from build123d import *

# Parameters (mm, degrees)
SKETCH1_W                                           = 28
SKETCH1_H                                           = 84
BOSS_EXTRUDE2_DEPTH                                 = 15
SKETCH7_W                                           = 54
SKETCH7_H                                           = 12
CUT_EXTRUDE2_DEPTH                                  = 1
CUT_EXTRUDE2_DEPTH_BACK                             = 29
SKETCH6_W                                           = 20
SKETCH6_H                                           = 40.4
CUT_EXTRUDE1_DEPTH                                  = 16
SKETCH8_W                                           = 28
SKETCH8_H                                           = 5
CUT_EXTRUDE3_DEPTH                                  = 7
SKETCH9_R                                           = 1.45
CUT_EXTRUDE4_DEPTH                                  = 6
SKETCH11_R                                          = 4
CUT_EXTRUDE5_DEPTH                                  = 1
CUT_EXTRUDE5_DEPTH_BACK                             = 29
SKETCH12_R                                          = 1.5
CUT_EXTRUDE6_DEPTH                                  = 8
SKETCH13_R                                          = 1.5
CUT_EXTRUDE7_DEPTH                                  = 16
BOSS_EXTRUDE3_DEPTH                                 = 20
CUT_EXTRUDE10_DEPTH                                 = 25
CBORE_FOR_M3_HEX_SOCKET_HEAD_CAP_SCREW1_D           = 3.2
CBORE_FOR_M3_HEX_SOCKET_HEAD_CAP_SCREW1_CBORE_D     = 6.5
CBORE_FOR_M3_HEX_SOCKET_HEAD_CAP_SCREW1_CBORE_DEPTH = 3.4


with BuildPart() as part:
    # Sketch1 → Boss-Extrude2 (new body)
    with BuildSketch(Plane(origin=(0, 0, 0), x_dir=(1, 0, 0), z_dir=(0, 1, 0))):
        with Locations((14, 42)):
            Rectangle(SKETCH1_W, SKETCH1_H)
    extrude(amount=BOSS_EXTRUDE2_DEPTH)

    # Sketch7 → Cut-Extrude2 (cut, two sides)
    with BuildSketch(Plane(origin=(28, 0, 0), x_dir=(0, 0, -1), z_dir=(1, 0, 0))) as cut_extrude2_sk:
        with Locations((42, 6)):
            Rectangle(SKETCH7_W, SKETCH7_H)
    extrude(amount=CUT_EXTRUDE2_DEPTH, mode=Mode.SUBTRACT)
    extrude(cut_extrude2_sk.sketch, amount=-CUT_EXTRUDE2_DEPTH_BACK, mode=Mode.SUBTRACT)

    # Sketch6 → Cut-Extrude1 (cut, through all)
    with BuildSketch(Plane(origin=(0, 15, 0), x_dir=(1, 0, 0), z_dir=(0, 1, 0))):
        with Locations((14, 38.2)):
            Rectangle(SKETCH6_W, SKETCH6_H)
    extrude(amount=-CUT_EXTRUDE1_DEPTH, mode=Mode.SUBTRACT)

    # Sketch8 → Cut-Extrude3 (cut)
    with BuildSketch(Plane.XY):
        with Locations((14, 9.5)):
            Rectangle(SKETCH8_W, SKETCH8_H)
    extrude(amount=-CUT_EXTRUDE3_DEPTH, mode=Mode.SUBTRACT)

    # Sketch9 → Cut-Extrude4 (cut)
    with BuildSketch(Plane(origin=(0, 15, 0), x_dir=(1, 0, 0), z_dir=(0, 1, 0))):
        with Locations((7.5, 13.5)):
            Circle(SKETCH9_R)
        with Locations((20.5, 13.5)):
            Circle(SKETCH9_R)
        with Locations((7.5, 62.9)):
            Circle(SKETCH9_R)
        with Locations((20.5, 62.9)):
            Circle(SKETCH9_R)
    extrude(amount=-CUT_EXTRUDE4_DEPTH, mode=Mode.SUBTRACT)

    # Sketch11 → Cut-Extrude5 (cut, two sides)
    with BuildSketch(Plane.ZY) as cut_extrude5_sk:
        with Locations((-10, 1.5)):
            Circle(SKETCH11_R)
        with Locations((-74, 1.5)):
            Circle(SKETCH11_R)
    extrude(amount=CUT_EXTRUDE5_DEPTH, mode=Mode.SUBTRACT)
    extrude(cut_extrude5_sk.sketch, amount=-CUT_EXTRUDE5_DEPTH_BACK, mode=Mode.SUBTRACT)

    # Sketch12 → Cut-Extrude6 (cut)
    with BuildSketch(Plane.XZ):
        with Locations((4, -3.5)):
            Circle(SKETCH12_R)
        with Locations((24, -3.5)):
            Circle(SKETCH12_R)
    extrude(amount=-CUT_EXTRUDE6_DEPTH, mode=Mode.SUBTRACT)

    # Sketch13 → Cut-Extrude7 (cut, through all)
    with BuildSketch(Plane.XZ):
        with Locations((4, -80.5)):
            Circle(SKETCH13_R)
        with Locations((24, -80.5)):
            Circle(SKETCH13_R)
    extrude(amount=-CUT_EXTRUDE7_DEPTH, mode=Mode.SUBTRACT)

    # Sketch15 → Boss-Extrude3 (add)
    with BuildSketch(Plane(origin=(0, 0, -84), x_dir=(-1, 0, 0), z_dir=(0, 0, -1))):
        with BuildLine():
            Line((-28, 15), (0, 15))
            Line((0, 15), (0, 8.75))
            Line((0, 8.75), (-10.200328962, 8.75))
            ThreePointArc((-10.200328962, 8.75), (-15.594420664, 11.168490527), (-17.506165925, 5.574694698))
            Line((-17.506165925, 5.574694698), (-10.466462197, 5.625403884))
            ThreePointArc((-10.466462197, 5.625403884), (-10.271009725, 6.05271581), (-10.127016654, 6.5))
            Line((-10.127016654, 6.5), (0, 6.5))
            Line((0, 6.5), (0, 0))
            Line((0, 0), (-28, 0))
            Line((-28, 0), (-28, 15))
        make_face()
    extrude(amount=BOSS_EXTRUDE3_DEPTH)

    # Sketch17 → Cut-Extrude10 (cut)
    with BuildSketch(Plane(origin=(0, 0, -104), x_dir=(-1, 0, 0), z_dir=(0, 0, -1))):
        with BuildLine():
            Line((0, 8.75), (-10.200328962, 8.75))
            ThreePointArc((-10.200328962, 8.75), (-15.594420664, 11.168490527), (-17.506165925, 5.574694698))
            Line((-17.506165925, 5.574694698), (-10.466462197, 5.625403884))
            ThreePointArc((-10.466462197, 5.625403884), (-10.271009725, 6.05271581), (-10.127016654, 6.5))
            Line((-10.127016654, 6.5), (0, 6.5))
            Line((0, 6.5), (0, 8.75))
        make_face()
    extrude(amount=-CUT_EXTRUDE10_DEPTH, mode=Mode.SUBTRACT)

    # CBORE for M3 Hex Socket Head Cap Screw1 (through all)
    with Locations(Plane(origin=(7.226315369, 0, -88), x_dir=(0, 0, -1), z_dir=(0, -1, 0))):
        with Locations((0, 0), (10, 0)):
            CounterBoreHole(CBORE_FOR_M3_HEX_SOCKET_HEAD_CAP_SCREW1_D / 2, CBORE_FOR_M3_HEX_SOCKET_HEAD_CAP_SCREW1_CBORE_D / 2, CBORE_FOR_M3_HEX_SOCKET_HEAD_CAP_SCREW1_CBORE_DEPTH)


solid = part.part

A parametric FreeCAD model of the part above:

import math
import FreeCAD as App
import Part
import Sketcher

V = App.Vector
Q = App.Units.Quantity

doc = App.newDocument("Part")
body = doc.addObject("PartDesign::Body", "Body")

sketch1 = doc.addObject("Sketcher::SketchObject", "Sketch")
body.addObject(sketch1)
sketch1.AttachmentSupport = (doc.XZ_Plane, [""])
sketch1.MapMode = "FlatFace"
sketch1.addGeometry(Part.LineSegment(V(0, -84, 0), V(0, 0, 0)), False)
sketch1.addGeometry(Part.LineSegment(V(0, 0, 0), V(28, 0, 0)), False)
sketch1.addGeometry(Part.LineSegment(V(28, 0, 0), V(28, -84, 0)), False)
sketch1.addGeometry(Part.LineSegment(V(28, -84, 0), V(0, -84, 0)), False)
sketch1.addConstraint(Sketcher.Constraint("Coincident", 0, 2, 1, 1))
sketch1.addConstraint(Sketcher.Constraint("Coincident", 1, 2, 2, 1))
sketch1.addConstraint(Sketcher.Constraint("Coincident", 2, 2, 3, 1))
sketch1.addConstraint(Sketcher.Constraint("Coincident", 3, 2, 0, 1))
sketch1.addConstraint(Sketcher.Constraint("Vertical", 0))
sketch1.addConstraint(Sketcher.Constraint("Horizontal", 1))
sketch1.addConstraint(Sketcher.Constraint("Vertical", 2))
sketch1.addConstraint(Sketcher.Constraint("Horizontal", 3))
sketch1.addConstraint(Sketcher.Constraint("Coincident", 0, 2, -1, 1))
sketch1.addConstraint(Sketcher.Constraint("DistanceX", 1, 1, 1, 2, Q("28 mm")))
sketch1.addConstraint(Sketcher.Constraint("DistanceY", 0, 1, 0, 2, Q("84 mm")))
pad1 = doc.addObject("PartDesign::Pad", "Pad")
body.addObject(pad1)
pad1.Profile = sketch1
pad1.Length = 15
pad1.Reversed = True

sketch2 = doc.addObject("Sketcher::SketchObject", "Sketch001")
body.addObject(sketch2)
sketch2.AttachmentSupport = (doc.YZ_Plane, [""])
sketch2.MapMode = "FlatFace"
sketch2.AttachmentOffset = App.Placement(V(0, 0, 28), App.Rotation())
sketch2.addGeometry(Part.LineSegment(V(12, -15, 0), V(0, -15, 0)), False)
sketch2.addGeometry(Part.LineSegment(V(0, -15, 0), V(0, -69, 0)), False)
sketch2.addGeometry(Part.LineSegment(V(0, -69, 0), V(12, -69, 0)), False)
sketch2.addGeometry(Part.LineSegment(V(12, -69, 0), V(12, -15, 0)), False)
sketch2.addConstraint(Sketcher.Constraint("Coincident", 0, 2, 1, 1))
sketch2.addConstraint(Sketcher.Constraint("Coincident", 1, 2, 2, 1))
sketch2.addConstraint(Sketcher.Constraint("Coincident", 2, 2, 3, 1))
sketch2.addConstraint(Sketcher.Constraint("Coincident", 3, 2, 0, 1))
sketch2.addConstraint(Sketcher.Constraint("Horizontal", 0))
sketch2.addConstraint(Sketcher.Constraint("Vertical", 1))
sketch2.addConstraint(Sketcher.Constraint("Horizontal", 2))
sketch2.addConstraint(Sketcher.Constraint("Vertical", 3))
sketch2.addConstraint(Sketcher.Constraint("PointOnObject", 0, 2, -2))
sketch2.addConstraint(Sketcher.Constraint("DistanceX", 0, 2, 0, 1, Q("12 mm")))
sketch2.addConstraint(Sketcher.Constraint("DistanceY", 1, 2, 1, 1, Q("54 mm")))
sketch2.addConstraint(Sketcher.Constraint("DistanceY", 0, 2, -1, 1, Q("15 mm")))
pocket1 = doc.addObject("PartDesign::Pocket", "Pocket")
body.addObject(pocket1)
pocket1.Profile = sketch2
pocket1.Type = "ThroughAll"
pocket1.Midplane = True

sketch3 = doc.addObject("Sketcher::SketchObject", "Sketch002")
body.addObject(sketch3)
sketch3.AttachmentSupport = (doc.XZ_Plane, [""])
sketch3.MapMode = "FlatFace"
sketch3.AttachmentOffset = App.Placement(V(0, 0, -15), App.Rotation())
sketch3.addGeometry(Part.LineSegment(V(4, -58, 0), V(4, -18, 0)), False)
sketch3.addGeometry(Part.LineSegment(V(4, -18, 0), V(24, -18, 0)), False)
sketch3.addGeometry(Part.LineSegment(V(24, -18, 0), V(24, -58, 0)), False)
sketch3.addGeometry(Part.LineSegment(V(24, -58, 0), V(4, -58, 0)), False)
sketch3.addConstraint(Sketcher.Constraint("Coincident", 0, 2, 1, 1))
sketch3.addConstraint(Sketcher.Constraint("Coincident", 1, 2, 2, 1))
sketch3.addConstraint(Sketcher.Constraint("Coincident", 2, 2, 3, 1))
sketch3.addConstraint(Sketcher.Constraint("Coincident", 3, 2, 0, 1))
sketch3.addConstraint(Sketcher.Constraint("Vertical", 0))
sketch3.addConstraint(Sketcher.Constraint("Horizontal", 1))
sketch3.addConstraint(Sketcher.Constraint("Vertical", 2))
sketch3.addConstraint(Sketcher.Constraint("Horizontal", 3))
sketch3.addConstraint(Sketcher.Constraint("DistanceX", 1, 1, 1, 2, Q("20 mm")))
sketch3.addConstraint(Sketcher.Constraint("DistanceY", 0, 1, 0, 2, Q("40.4 mm")))
sketch3.addConstraint(Sketcher.Constraint("DistanceX", -1, 1, 0, 2, Q("4 mm")))
sketch3.addConstraint(Sketcher.Constraint("DistanceY", 0, 2, -1, 1, Q("18 mm")))
pocket2 = doc.addObject("PartDesign::Pocket", "Pocket001")
body.addObject(pocket2)
pocket2.Profile = sketch3
pocket2.Type = "ThroughAll"
pocket2.Reversed = True

sketch4 = doc.addObject("Sketcher::SketchObject", "Sketch003")
body.addObject(sketch4)
sketch4.AttachmentSupport = (doc.XY_Plane, [""])
sketch4.MapMode = "FlatFace"
sketch4.addGeometry(Part.LineSegment(V(0, 12, 0), V(0, 7, 0)), False)
sketch4.addGeometry(Part.LineSegment(V(0, 7, 0), V(28, 7, 0)), False)
sketch4.addGeometry(Part.LineSegment(V(28, 7, 0), V(28, 12, 0)), False)
sketch4.addGeometry(Part.LineSegment(V(28, 12, 0), V(0, 12, 0)), False)
sketch4.addConstraint(Sketcher.Constraint("Coincident", 0, 2, 1, 1))
sketch4.addConstraint(Sketcher.Constraint("Coincident", 1, 2, 2, 1))
sketch4.addConstraint(Sketcher.Constraint("Coincident", 2, 2, 3, 1))
sketch4.addConstraint(Sketcher.Constraint("Coincident", 3, 2, 0, 1))
sketch4.addConstraint(Sketcher.Constraint("Vertical", 0))
sketch4.addConstraint(Sketcher.Constraint("Horizontal", 1))
sketch4.addConstraint(Sketcher.Constraint("Vertical", 2))
sketch4.addConstraint(Sketcher.Constraint("Horizontal", 3))
sketch4.addConstraint(Sketcher.Constraint("PointOnObject", 0, 2, -2))
sketch4.addConstraint(Sketcher.Constraint("DistanceX", 1, 1, 1, 2, Q("28 mm")))
sketch4.addConstraint(Sketcher.Constraint("DistanceY", 0, 2, 0, 1, Q("5 mm")))
sketch4.addConstraint(Sketcher.Constraint("DistanceY", -1, 1, 0, 2, Q("7 mm")))
pocket3 = doc.addObject("PartDesign::Pocket", "Pocket002")
body.addObject(pocket3)
pocket3.Profile = sketch4
pocket3.Length = 7

sketch5 = doc.addObject("Sketcher::SketchObject", "Sketch004")
body.addObject(sketch5)
sketch5.AttachmentSupport = (doc.XZ_Plane, [""])
sketch5.MapMode = "FlatFace"
sketch5.AttachmentOffset = App.Placement(V(0, 0, -15), App.Rotation())
sketch5.addGeometry(Part.Circle(V(7.5, -13.5, 0), V(0, 0, 1), 1.4), False)
sketch5.addGeometry(Part.Circle(V(20.5, -13.5, 0), V(0, 0, 1), 1.4), False)
sketch5.addGeometry(Part.Circle(V(7.5, -62.9, 0), V(0, 0, 1), 1.4), False)
sketch5.addGeometry(Part.Circle(V(20.5, -62.9, 0), V(0, 0, 1), 1.4), False)
sketch5.addConstraint(Sketcher.Constraint("Equal", 0, 1))
sketch5.addConstraint(Sketcher.Constraint("Equal", 1, 2))
sketch5.addConstraint(Sketcher.Constraint("Equal", 2, 3))
sketch5.addConstraint(Sketcher.Constraint("Horizontal", 0, 3, 1, 3))
sketch5.addConstraint(Sketcher.Constraint("Horizontal", 2, 3, 3, 3))
sketch5.addConstraint(Sketcher.Constraint("Vertical", 0, 3, 2, 3))
sketch5.addConstraint(Sketcher.Constraint("Vertical", 1, 3, 3, 3))
sketch5.addConstraint(Sketcher.Constraint("Diameter", 0, Q("2.9 mm")))
sketch5.addConstraint(Sketcher.Constraint("DistanceX", 0, 3, 1, 3, Q("13 mm")))
sketch5.addConstraint(Sketcher.Constraint("DistanceX", -1, 1, 0, 3, Q("7.5 mm")))
sketch5.addConstraint(Sketcher.Constraint("DistanceY", 0, 3, -1, 1, Q("13.5 mm")))
sketch5.addConstraint(Sketcher.Constraint("DistanceY", 2, 3, -1, 1, Q("62.9 mm")))
pocket4 = doc.addObject("PartDesign::Pocket", "Pocket003")
body.addObject(pocket4)
pocket4.Profile = sketch5
pocket4.Length = 6
pocket4.Reversed = True

sketch6 = doc.addObject("Sketcher::SketchObject", "Sketch005")
body.addObject(sketch6)
sketch6.AttachmentSupport = (doc.YZ_Plane, [""])
sketch6.MapMode = "FlatFace"
sketch6.addGeometry(Part.Circle(V(1.5, -10, 0), V(0, 0, 1), 4), False)
sketch6.addGeometry(Part.Circle(V(1.5, -74, 0), V(0, 0, 1), 4), False)
sketch6.addConstraint(Sketcher.Constraint("Equal", 0, 1))
sketch6.addConstraint(Sketcher.Constraint("Vertical", 0, 3, 1, 3))
sketch6.addConstraint(Sketcher.Constraint("Diameter", 0, Q("8 mm")))
sketch6.addConstraint(Sketcher.Constraint("DistanceY", 0, 3, -1, 1, Q("10 mm")))
sketch6.addConstraint(Sketcher.Constraint("DistanceY", 1, 3, -1, 1, Q("74 mm")))
sketch6.addConstraint(Sketcher.Constraint("DistanceX", -1, 1, 0, 3, Q("1.5 mm")))
pocket5 = doc.addObject("PartDesign::Pocket", "Pocket004")
body.addObject(pocket5)
pocket5.Profile = sketch6
pocket5.Type = "ThroughAll"
pocket5.Midplane = True

sketch7 = doc.addObject("Sketcher::SketchObject", "Sketch006")
body.addObject(sketch7)
sketch7.AttachmentSupport = (doc.XZ_Plane, [""])
sketch7.MapMode = "FlatFace"
sketch7.addGeometry(Part.Circle(V(4, -3.5, 0), V(0, 0, 1), 1.5), False)
sketch7.addGeometry(Part.Circle(V(24, -3.5, 0), V(0, 0, 1), 1.5), False)
sketch7.addConstraint(Sketcher.Constraint("Equal", 0, 1))
sketch7.addConstraint(Sketcher.Constraint("Horizontal", 0, 3, 1, 3))
sketch7.addConstraint(Sketcher.Constraint("Diameter", 0, Q("3 mm")))
sketch7.addConstraint(Sketcher.Constraint("DistanceX", -1, 1, 0, 3, Q("4 mm")))
sketch7.addConstraint(Sketcher.Constraint("DistanceX", -1, 1, 1, 3, Q("24 mm")))
sketch7.addConstraint(Sketcher.Constraint("DistanceY", 0, 3, -1, 1, Q("3.5 mm")))
pocket6 = doc.addObject("PartDesign::Pocket", "Pocket005")
body.addObject(pocket6)
pocket6.Profile = sketch7
pocket6.Length = 8

sketch8 = doc.addObject("Sketcher::SketchObject", "Sketch007")
body.addObject(sketch8)
sketch8.AttachmentSupport = (doc.XZ_Plane, [""])
sketch8.MapMode = "FlatFace"
sketch8.addGeometry(Part.Circle(V(4, -80.5, 0), V(0, 0, 1), 1.5), False)
sketch8.addGeometry(Part.Circle(V(24, -80.5, 0), V(0, 0, 1), 1.5), False)
sketch8.addConstraint(Sketcher.Constraint("Equal", 0, 1))
sketch8.addConstraint(Sketcher.Constraint("Horizontal", 0, 3, 1, 3))
sketch8.addConstraint(Sketcher.Constraint("Diameter", 0, Q("3 mm")))
sketch8.addConstraint(Sketcher.Constraint("DistanceX", -1, 1, 0, 3, Q("4 mm")))
sketch8.addConstraint(Sketcher.Constraint("DistanceX", -1, 1, 1, 3, Q("24 mm")))
sketch8.addConstraint(Sketcher.Constraint("DistanceY", 0, 3, -1, 1, Q("80.5 mm")))
pocket7 = doc.addObject("PartDesign::Pocket", "Pocket006")
body.addObject(pocket7)
pocket7.Profile = sketch8
pocket7.Type = "ThroughAll"

sketch9 = doc.addObject("Sketcher::SketchObject", "Sketch008")
body.addObject(sketch9)
sketch9.AttachmentSupport = (doc.XY_Plane, [""])
sketch9.MapMode = "FlatFace"
sketch9.AttachmentOffset = App.Placement(V(0, 0, -84), App.Rotation())
sketch9.addGeometry(Part.LineSegment(V(0, 15, 0), V(28, 15, 0)), False)
sketch9.addGeometry(Part.LineSegment(V(28, 15, 0), V(28, 0, 0)), False)
sketch9.addGeometry(Part.LineSegment(V(28, 0, 0), V(0, 0, 0)), False)
sketch9.addGeometry(Part.LineSegment(V(0, 0, 0), V(0, 6.5, 0)), False)
sketch9.addGeometry(Part.LineSegment(V(0, 6.5, 0), V(10.1, 6.5, 0)), False)
sketch9.addGeometry(Part.ArcOfCircle(Part.Circle(V(14, 7.5, 0), V(0, 0, 1), 4), math.radians(-165.52), math.radians(-152.05)), False)
sketch9.addGeometry(Part.LineSegment(V(10.5, 5.6, 0), V(17.5, 5.6, 0)), False)
sketch9.addGeometry(Part.ArcOfCircle(Part.Circle(V(14, 7.5, 0), V(0, 0, 1), 4), math.radians(-29), math.radians(162)), False)
sketch9.addGeometry(Part.LineSegment(V(10.2, 8.8, 0), V(0, 8.8, 0)), False)
sketch9.addGeometry(Part.LineSegment(V(0, 8.8, 0), V(0, 15, 0)), False)
sketch9.addConstraint(Sketcher.Constraint("Coincident", 0, 2, 1, 1))
sketch9.addConstraint(Sketcher.Constraint("Coincident", 1, 2, 2, 1))
sketch9.addConstraint(Sketcher.Constraint("Coincident", 2, 2, 3, 1))
sketch9.addConstraint(Sketcher.Constraint("Coincident", 3, 2, 4, 1))
sketch9.addConstraint(Sketcher.Constraint("Coincident", 4, 2, 5, 1))
sketch9.addConstraint(Sketcher.Constraint("Coincident", 5, 2, 6, 1))
sketch9.addConstraint(Sketcher.Constraint("Coincident", 6, 2, 7, 1))
sketch9.addConstraint(Sketcher.Constraint("Coincident", 7, 2, 8, 1))
sketch9.addConstraint(Sketcher.Constraint("Coincident", 8, 2, 9, 1))
sketch9.addConstraint(Sketcher.Constraint("Coincident", 9, 2, 0, 1))
sketch9.addConstraint(Sketcher.Constraint("Horizontal", 0))
sketch9.addConstraint(Sketcher.Constraint("Vertical", 1))
sketch9.addConstraint(Sketcher.Constraint("Horizontal", 2))
sketch9.addConstraint(Sketcher.Constraint("Vertical", 3))
sketch9.addConstraint(Sketcher.Constraint("Horizontal", 4))
sketch9.addConstraint(Sketcher.Constraint("Horizontal", 8))
sketch9.addConstraint(Sketcher.Constraint("Vertical", 9))
sketch9.addConstraint(Sketcher.Constraint("Coincident", 2, 2, -1, 1))
sketch9.addConstraint(Sketcher.Constraint("Coincident", 7, 3, 5, 3))
sketch9.addConstraint(Sketcher.Constraint("Equal", 5, 7))
sketch9.addConstraint(Sketcher.Constraint("PointOnObject", 8, 2, -2))
sketch9.addConstraint(Sketcher.Constraint("Radius", 5, Q("4 mm")))
sketch9.addConstraint(Sketcher.Constraint("DistanceX", 0, 1, 0, 2, Q("28 mm")))
sketch9.addConstraint(Sketcher.Constraint("DistanceY", 1, 2, 1, 1, Q("15 mm")))
sketch9.addConstraint(Sketcher.Constraint("DistanceY", 3, 1, 3, 2, Q("6.5 mm")))
sketch9.addConstraint(Sketcher.Constraint("DistanceX", -1, 1, 5, 3, Q("14 mm")))
sketch9.addConstraint(Sketcher.Constraint("DistanceY", 3, 2, 7, 3, Q("1 mm")))
sketch9.addConstraint(Sketcher.Constraint("DistanceY", 9, 1, 9, 2, Q("6.25 mm")))
sketch9.addConstraint(Sketcher.Constraint("DistanceY", 6, 2, 5, 2, Q("0.050709 mm")))
sketch9.addConstraint(Sketcher.Constraint("DistanceX", 4, 2, 6, 2, Q("7.379149 mm")))
pad2 = doc.addObject("PartDesign::Pad", "Pad001")
body.addObject(pad2)
pad2.Profile = sketch9
pad2.Length = 20
pad2.Reversed = True

sketch10 = doc.addObject("Sketcher::SketchObject", "Sketch009")
body.addObject(sketch10)
sketch10.AttachmentSupport = (doc.XY_Plane, [""])
sketch10.MapMode = "FlatFace"
sketch10.AttachmentOffset = App.Placement(V(0, 0, -104), App.Rotation())
sketch10.addGeometry(Part.LineSegment(V(0, 8.8, 0), V(10.2, 8.8, 0)), False)
sketch10.addGeometry(Part.ArcOfCircle(Part.Circle(V(14, 7.5, 0), V(0, 0, 1), 4), math.radians(-29), math.radians(162)), False)
sketch10.addGeometry(Part.LineSegment(V(17.5, 5.6, 0), V(10.5, 5.6, 0)), False)
sketch10.addGeometry(Part.ArcOfCircle(Part.Circle(V(14, 7.5, 0), V(0, 0, 1), 4), math.radians(-165.52), math.radians(-152.05)), False)
sketch10.addGeometry(Part.LineSegment(V(10.1, 6.5, 0), V(0, 6.5, 0)), False)
sketch10.addGeometry(Part.LineSegment(V(0, 6.5, 0), V(0, 8.8, 0)), False)
sketch10.addConstraint(Sketcher.Constraint("Coincident", 0, 2, 1, 2))
sketch10.addConstraint(Sketcher.Constraint("Coincident", 1, 1, 2, 1))
sketch10.addConstraint(Sketcher.Constraint("Coincident", 2, 2, 3, 2))
sketch10.addConstraint(Sketcher.Constraint("Coincident", 3, 1, 4, 1))
sketch10.addConstraint(Sketcher.Constraint("Coincident", 4, 2, 5, 1))
sketch10.addConstraint(Sketcher.Constraint("Coincident", 5, 2, 0, 1))
sketch10.addConstraint(Sketcher.Constraint("Horizontal", 0))
sketch10.addConstraint(Sketcher.Constraint("Horizontal", 4))
sketch10.addConstraint(Sketcher.Constraint("Vertical", 5))
sketch10.addConstraint(Sketcher.Constraint("Coincident", 3, 3, 1, 3))
sketch10.addConstraint(Sketcher.Constraint("Equal", 1, 3))
sketch10.addConstraint(Sketcher.Constraint("PointOnObject", 4, 2, -2))
sketch10.addConstraint(Sketcher.Constraint("Radius", 1, Q("4 mm")))
sketch10.addConstraint(Sketcher.Constraint("DistanceX", -1, 1, 1, 3, Q("14 mm")))
sketch10.addConstraint(Sketcher.Constraint("DistanceY", 3, 1, 1, 3, Q("1 mm")))
sketch10.addConstraint(Sketcher.Constraint("DistanceY", 5, 1, 5, 2, Q("2.25 mm")))
sketch10.addConstraint(Sketcher.Constraint("DistanceY", -1, 1, 1, 3, Q("7.5 mm")))
sketch10.addConstraint(Sketcher.Constraint("DistanceY", 1, 1, 2, 2, Q("0.050709 mm")))
sketch10.addConstraint(Sketcher.Constraint("DistanceX", 3, 1, 1, 1, Q("7.379149 mm")))
pocket8 = doc.addObject("PartDesign::Pocket", "Pocket007")
body.addObject(pocket8)
pocket8.Profile = sketch10
pocket8.Length = 25
pocket8.Reversed = True

sketch11 = doc.addObject("Sketcher::SketchObject", "Sketch010")
body.addObject(sketch11)
sketch11.AttachmentSupport = (doc.XZ_Plane, [""])
sketch11.MapMode = "FlatFace"
sketch11.addGeometry(Part.Circle(V(7.2, -88, 0), V(0, 0, 1), 1.6), False)
sketch11.addGeometry(Part.Circle(V(7.2, -98, 0), V(0, 0, 1), 1.6), False)
sketch11.addConstraint(Sketcher.Constraint("Equal", 0, 1))
sketch11.addConstraint(Sketcher.Constraint("Vertical", 0, 3, 1, 3))
sketch11.addConstraint(Sketcher.Constraint("Diameter", 0, Q("3.2 mm")))
sketch11.addConstraint(Sketcher.Constraint("DistanceY", 0, 3, -1, 1, Q("88 mm")))
sketch11.addConstraint(Sketcher.Constraint("DistanceY", 1, 3, -1, 1, Q("98 mm")))
sketch11.addConstraint(Sketcher.Constraint("DistanceX", -1, 1, 0, 3, Q("7.226315 mm")))
doc.recompute()
hole = doc.addObject("PartDesign::Hole", "Hole")
body.addObject(hole)
hole.Profile = sketch11
hole.ThreadType = "None"
hole.Diameter = 3.2
hole.DepthType = "ThroughAll"
hole.HoleCutType = "Counterbore"
hole.HoleCutDiameter = 6.5
hole.HoleCutDepth = 3.4

doc.recompute()
